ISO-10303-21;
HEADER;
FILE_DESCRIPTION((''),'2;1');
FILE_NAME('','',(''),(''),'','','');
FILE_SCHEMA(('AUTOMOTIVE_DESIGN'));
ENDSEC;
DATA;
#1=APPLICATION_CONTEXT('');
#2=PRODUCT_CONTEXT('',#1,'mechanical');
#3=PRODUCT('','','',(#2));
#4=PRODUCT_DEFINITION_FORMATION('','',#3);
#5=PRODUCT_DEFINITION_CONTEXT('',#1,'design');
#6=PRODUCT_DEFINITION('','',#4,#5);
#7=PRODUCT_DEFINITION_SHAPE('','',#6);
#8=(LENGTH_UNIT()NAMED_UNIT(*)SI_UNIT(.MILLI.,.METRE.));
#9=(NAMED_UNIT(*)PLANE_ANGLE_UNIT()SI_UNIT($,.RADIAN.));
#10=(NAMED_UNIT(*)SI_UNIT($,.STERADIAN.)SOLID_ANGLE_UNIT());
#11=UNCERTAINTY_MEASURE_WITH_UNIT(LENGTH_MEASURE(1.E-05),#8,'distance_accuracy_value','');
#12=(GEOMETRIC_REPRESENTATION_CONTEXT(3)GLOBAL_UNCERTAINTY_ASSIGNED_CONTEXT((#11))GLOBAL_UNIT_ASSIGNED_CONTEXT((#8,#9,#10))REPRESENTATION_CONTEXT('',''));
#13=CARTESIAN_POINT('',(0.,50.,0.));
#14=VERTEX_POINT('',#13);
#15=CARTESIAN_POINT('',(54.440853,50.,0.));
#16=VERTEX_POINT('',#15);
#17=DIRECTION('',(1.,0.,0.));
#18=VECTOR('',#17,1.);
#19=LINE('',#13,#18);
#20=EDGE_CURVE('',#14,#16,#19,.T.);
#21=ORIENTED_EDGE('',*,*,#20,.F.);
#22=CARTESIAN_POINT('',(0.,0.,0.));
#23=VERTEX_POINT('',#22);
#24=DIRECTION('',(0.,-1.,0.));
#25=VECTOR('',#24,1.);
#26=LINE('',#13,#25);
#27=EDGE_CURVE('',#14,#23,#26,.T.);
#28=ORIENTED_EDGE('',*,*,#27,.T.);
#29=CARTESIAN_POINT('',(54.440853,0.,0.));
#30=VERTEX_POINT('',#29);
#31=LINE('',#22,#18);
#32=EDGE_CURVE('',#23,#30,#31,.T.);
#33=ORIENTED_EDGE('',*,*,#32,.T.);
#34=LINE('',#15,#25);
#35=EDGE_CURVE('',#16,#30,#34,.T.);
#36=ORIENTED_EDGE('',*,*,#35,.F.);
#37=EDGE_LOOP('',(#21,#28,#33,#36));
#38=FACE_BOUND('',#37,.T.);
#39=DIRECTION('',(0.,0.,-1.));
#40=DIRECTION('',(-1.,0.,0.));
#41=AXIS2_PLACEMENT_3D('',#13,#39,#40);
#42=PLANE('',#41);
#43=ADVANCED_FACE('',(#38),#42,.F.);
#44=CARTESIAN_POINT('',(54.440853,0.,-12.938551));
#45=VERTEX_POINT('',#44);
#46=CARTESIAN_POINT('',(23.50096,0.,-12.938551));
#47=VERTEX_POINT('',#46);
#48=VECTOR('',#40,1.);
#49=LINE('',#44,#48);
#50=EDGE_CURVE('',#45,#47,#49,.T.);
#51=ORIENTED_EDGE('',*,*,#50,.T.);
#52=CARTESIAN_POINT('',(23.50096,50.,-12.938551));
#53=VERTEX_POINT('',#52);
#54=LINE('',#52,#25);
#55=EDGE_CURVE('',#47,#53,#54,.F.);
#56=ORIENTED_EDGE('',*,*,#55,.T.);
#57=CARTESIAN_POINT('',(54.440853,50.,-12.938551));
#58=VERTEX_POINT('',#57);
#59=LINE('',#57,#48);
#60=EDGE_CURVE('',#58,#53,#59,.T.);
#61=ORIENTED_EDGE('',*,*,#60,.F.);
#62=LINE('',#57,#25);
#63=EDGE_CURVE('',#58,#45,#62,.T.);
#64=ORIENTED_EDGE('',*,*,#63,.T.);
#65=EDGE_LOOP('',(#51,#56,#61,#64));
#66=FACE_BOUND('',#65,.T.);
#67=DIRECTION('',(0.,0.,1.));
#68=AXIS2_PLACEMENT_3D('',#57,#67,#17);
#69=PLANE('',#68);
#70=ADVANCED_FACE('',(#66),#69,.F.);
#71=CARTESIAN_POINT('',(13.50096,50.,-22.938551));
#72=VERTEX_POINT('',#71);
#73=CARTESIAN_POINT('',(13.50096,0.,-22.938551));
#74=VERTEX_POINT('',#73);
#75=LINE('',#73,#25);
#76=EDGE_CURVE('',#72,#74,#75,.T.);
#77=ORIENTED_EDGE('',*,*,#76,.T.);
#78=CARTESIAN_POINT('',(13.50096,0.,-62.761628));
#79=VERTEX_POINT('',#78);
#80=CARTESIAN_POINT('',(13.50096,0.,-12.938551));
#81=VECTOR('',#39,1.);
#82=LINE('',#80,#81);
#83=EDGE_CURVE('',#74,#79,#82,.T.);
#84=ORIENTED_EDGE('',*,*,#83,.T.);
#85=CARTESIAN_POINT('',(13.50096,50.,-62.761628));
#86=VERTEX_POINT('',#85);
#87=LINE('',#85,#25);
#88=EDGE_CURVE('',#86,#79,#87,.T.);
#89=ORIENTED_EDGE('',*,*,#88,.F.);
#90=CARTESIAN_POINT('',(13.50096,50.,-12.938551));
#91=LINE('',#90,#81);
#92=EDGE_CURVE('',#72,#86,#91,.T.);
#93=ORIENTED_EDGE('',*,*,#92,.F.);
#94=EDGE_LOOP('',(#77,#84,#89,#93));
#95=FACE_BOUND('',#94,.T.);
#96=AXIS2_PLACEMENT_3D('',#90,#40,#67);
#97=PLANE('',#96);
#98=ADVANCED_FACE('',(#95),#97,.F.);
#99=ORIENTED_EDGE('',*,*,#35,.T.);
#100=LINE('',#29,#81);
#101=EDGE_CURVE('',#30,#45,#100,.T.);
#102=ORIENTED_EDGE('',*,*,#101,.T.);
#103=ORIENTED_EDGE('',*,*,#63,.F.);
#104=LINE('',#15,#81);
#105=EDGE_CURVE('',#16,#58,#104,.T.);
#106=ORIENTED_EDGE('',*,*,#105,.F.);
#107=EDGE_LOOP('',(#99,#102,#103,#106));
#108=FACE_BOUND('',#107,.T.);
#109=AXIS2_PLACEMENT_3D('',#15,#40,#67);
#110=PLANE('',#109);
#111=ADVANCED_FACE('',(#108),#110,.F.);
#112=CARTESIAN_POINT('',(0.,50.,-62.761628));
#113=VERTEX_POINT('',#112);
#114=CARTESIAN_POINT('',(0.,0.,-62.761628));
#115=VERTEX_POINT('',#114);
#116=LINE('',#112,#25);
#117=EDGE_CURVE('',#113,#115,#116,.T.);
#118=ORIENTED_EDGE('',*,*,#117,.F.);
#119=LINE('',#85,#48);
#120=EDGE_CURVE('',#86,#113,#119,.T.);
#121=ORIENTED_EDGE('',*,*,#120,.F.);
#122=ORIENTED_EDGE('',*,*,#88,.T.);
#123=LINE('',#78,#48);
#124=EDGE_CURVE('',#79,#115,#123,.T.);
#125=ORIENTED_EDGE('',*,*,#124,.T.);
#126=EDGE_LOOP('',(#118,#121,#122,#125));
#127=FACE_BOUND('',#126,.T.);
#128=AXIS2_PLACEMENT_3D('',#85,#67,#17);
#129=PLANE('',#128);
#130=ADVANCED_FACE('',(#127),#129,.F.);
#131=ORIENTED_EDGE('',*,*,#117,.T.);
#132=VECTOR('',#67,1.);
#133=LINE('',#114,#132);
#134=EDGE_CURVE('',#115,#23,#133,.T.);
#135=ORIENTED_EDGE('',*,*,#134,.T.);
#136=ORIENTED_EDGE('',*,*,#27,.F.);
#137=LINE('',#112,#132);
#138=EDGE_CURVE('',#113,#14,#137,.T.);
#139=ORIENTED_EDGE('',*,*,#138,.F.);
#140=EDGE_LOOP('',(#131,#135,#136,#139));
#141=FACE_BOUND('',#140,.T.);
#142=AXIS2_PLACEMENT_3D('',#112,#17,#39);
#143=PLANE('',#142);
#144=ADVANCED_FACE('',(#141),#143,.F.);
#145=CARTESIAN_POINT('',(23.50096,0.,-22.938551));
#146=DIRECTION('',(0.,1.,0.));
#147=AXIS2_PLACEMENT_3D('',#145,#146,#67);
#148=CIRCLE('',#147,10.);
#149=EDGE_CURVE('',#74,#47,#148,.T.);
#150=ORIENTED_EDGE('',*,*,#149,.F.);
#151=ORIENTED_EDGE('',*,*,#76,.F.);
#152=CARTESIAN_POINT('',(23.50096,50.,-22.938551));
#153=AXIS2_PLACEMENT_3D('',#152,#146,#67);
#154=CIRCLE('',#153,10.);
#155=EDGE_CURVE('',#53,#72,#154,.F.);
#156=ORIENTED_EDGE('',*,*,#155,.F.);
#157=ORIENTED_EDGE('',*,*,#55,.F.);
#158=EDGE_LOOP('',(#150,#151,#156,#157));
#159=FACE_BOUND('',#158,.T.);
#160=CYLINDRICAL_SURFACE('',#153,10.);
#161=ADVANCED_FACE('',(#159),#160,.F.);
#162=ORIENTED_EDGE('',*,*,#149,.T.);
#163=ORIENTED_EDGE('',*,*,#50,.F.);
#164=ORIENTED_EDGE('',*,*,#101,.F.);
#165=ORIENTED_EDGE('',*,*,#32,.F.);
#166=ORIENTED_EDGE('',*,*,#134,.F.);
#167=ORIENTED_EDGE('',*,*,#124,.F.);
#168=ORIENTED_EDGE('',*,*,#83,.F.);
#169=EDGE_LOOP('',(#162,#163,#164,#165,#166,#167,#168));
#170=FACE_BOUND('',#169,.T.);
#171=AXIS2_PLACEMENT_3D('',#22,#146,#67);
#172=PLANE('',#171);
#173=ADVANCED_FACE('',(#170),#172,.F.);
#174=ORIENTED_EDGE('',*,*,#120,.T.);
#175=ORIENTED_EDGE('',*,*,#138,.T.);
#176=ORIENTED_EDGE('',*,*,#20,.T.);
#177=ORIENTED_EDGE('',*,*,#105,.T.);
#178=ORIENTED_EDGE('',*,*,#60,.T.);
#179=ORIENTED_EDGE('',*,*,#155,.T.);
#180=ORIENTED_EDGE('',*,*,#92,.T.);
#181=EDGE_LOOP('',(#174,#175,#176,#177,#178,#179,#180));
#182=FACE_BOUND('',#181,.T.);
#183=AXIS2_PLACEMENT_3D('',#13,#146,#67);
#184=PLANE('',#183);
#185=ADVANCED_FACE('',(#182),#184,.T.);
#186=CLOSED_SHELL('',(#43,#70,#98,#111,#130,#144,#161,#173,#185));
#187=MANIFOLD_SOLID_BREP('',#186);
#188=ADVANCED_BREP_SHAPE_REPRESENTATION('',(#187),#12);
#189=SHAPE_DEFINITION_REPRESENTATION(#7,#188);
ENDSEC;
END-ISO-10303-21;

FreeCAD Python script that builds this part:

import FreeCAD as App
import Part
import Sketcher
Q = App.Units.Quantity


def edges_at(feature, points):
    """Names of the edges that pass closest to the given points."""
    edges = feature.Shape.Edges
    near = lambda p: min(range(len(edges)), key=lambda i: edges[i].distToShape(Part.Vertex(*p))[0])
    return sorted({f"Edge{near(p) + 1}" for p in points})

doc = App.newDocument("Part")
body = doc.addObject("PartDesign::Body", "Body")

# Sketch on XZ plane
sketch1 = body.newObject("Sketcher::SketchObject", "Sketch")
sketch1.AttachmentSupport = (doc.getObject("XZ_Plane"), [""])
sketch1.MapMode = "FlatFace"
sketch1.addGeometry([
    Part.LineSegment(App.Vector(0, 0, 0), App.Vector(54, 0, 0)),  # 0
    Part.LineSegment(App.Vector(54, 0, 0), App.Vector(54, -13, 0)),  # 1
    Part.LineSegment(App.Vector(54, -13, 0), App.Vector(14, -13, 0)),  # 2
    Part.LineSegment(App.Vector(14, -13, 0), App.Vector(14, -63, 0)),  # 3
    Part.LineSegment(App.Vector(14, -63, 0), App.Vector(0, -63, 0)),  # 4
    Part.LineSegment(App.Vector(0, -63, 0), App.Vector(0, 0, 0)),  # 5
], False)
sketch1.addConstraint([
    Sketcher.Constraint("Coincident", 0, 2, 1, 1),
    Sketcher.Constraint("Coincident", 1, 2, 2, 1),
    Sketcher.Constraint("Coincident", 2, 2, 3, 1),
    Sketcher.Constraint("Coincident", 3, 2, 4, 1),
    Sketcher.Constraint("Coincident", 4, 2, 5, 1),
    Sketcher.Constraint("Coincident", 5, 2, 0, 1),
    Sketcher.Constraint("Horizontal", 0),
    Sketcher.Constraint("Vertical", 1),
    Sketcher.Constraint("Horizontal", 2),
    Sketcher.Constraint("Vertical", 3),
    Sketcher.Constraint("Horizontal", 4),
    Sketcher.Constraint("Vertical", 5),
    Sketcher.Constraint("Coincident", 5, 2, -1, 1),
    Sketcher.Constraint("DistanceX", 4, 2, 4, 1, Q("13.50096 mm")),
    Sketcher.Constraint("DistanceY", 1, 2, 1, 1, Q("12.938551 mm")),
    Sketcher.Constraint("DistanceX", 0, 1, 0, 2, Q("54.440853 mm")),
    Sketcher.Constraint("DistanceY", 3, 2, 3, 1, Q("49.823077 mm")),
])
pad1 = body.newObject("PartDesign::Pad", "Pad")
pad1.Profile = sketch1
pad1.Length = 50
pad1.Reversed = True
doc.recompute()

fillet = body.newObject("PartDesign::Fillet", "Fillet")
fillet.Base = (pad1, edges_at(pad1, [(13.501, 25, -12.939)]))
fillet.Radius = 10

doc.recompute()
